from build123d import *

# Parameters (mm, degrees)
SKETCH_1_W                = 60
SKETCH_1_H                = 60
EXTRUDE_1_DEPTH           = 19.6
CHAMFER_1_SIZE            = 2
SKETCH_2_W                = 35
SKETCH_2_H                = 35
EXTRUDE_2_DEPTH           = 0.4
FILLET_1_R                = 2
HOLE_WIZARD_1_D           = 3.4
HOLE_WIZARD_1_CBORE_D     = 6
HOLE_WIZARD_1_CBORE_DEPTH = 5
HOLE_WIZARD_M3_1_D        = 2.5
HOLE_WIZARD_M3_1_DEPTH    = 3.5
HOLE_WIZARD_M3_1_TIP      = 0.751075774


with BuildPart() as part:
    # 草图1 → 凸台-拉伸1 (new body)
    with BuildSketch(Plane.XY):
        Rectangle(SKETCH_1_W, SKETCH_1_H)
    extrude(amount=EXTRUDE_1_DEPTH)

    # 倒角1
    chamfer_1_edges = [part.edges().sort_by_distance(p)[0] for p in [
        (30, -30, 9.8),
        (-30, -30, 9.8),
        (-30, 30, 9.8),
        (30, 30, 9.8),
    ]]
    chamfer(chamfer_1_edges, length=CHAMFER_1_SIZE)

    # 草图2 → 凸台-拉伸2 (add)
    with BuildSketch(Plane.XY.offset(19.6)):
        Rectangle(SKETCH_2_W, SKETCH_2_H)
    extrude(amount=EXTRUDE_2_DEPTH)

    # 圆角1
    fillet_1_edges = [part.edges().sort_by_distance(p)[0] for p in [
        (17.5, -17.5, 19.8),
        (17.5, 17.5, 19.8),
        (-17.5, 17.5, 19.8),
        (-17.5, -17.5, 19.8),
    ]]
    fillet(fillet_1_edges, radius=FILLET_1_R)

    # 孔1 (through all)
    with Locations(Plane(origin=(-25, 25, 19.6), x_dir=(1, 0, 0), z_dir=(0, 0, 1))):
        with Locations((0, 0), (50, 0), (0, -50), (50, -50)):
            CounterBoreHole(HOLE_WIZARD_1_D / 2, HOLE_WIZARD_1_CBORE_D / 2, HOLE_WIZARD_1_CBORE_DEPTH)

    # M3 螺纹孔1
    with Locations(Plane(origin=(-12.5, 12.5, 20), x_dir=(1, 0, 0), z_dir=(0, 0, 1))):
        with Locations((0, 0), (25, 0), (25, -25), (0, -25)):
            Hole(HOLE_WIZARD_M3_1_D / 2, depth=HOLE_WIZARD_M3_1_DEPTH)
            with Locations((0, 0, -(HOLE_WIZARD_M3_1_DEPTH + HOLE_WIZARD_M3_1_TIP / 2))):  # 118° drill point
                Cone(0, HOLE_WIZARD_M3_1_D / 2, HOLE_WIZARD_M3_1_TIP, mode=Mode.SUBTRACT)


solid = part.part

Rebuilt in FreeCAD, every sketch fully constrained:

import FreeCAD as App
import Part
import Sketcher

V = App.Vector
Q = App.Units.Quantity


def edges_at(feature, points):
    """Names of the edges that pass closest to the given points."""
    edges = feature.Shape.Edges
    near = lambda p: min(range(len(edges)), key=lambda i: edges[i].distToShape(Part.Vertex(*p))[0])
    return sorted({f"Edge{near(p) + 1}" for p in points})


def add_polygon(sketch, points):
    """Adds a closed chain of lines whose ends are joined by coincident constraints."""
    first, n = sketch.GeometryCount, len(points)
    for a, b in zip(points, points[1:] + points[:1]):
        sketch.addGeometry(Part.LineSegment(App.Vector(*a, 0), App.Vector(*b, 0)), False)
    for i in range(n):
        sketch.addConstraint(Sketcher.Constraint("Coincident", first + i, 2, first + (i + 1) % n, 1))

doc = App.newDocument("Part")
params = doc.addObject("Spreadsheet::Sheet", "Params")
for row, (alias, value) in enumerate([
    ("sketch1_width", "60 mm"),
    ("pad1_length", "19.6 mm"),
    ("chamfer_size", "2 mm"),
    ("sketch2_width", "35 mm"),
    ("pad2_length", "0.4 mm"),
    ("fillet_radius", "2 mm"),
    ("sketch3_diameter", "3.4 mm"),
    ("hole_diameter", "3.4 mm"),
    ("hole_cbore_diameter", "6 mm"),
    ("hole_cbore_depth", "5 mm"),
    ("sketch4_diameter", "2.5 mm"),
    ("hole2_diameter", "2.5 mm"),
    ("hole2_depth", "3.5 mm"),
], start=1):
    params.set(f"A{row}", alias)
    params.set(f"B{row}", "=" + value)
    params.setAlias(f"B{row}", alias)

body = doc.addObject("PartDesign::Body", "Body")

# Sketch on XY plane
sketch1 = body.newObject("Sketcher::SketchObject", "Sketch")
sketch1.AttachmentSupport = (doc.getObject("XY_Plane"), [""])
sketch1.MapMode = "FlatFace"
add_polygon(sketch1, [(-30, 30), (-30, -30), (30, -30), (30, 30)])  # lines 0-3
sketch1.addConstraint([
    Sketcher.Constraint("Vertical", 0),
    Sketcher.Constraint("Horizontal", 1),
    Sketcher.Constraint("Vertical", 2),
    Sketcher.Constraint("Horizontal", 3),
    Sketcher.Constraint("Symmetric", 0, 2, 2, 2, -1, 1),
    Sketcher.Constraint("Equal", 3, 0),
    Sketcher.Constraint("DistanceX", 1, 1, 1, 2, Q("60 mm")),
])
sketch1.setExpression("Constraints[10]", "Params.sketch1_width")
pad1 = body.newObject("PartDesign::Pad", "Pad")
pad1.Profile = sketch1
pad1.setExpression("Length", "Params.pad1_length")
doc.recompute()

chamfer = body.newObject("PartDesign::Chamfer", "Chamfer")
chamfer.Base = (pad1, edges_at(pad1, [
    (30, -30, 9.8),
    (-30, -30, 9.8),
    (-30, 30, 9.8),
    (30, 30, 9.8),
]))
chamfer.setExpression("Size", "Params.chamfer_size")

# Sketch on XY plane
sketch2 = body.newObject("Sketcher::SketchObject", "Sketch001")
sketch2.AttachmentSupport = (doc.getObject("XY_Plane"), [""])
sketch2.MapMode = "FlatFace"
sketch2.AttachmentOffset = App.Placement(V(0, 0, 19.6), App.Rotation())
add_polygon(sketch2, [(-18, 18), (-18, -18), (18, -18), (18, 18)])  # lines 0-3
sketch2.addConstraint([
    Sketcher.Constraint("Vertical", 0),
    Sketcher.Constraint("Horizontal", 1),
    Sketcher.Constraint("Vertical", 2),
    Sketcher.Constraint("Horizontal", 3),
    Sketcher.Constraint("Symmetric", 0, 2, 2, 2, -1, 1),
    Sketcher.Constraint("Equal", 3, 0),
    Sketcher.Constraint("DistanceX", 1, 1, 1, 2, Q("35 mm")),
])
sketch2.setExpression("Constraints[10]", "Params.sketch2_width")
pad2 = body.newObject("PartDesign::Pad", "Pad001")
pad2.Profile = sketch2
pad2.setExpression("Length", "Params.pad2_length")
doc.recompute()

fillet = body.newObject("PartDesign::Fillet", "Fillet")
fillet.Base = (pad2, edges_at(pad2, [
    (17.5, -17.5, 19.8),
    (17.5, 17.5, 19.8),
    (-17.5, 17.5, 19.8),
    (-17.5, -17.5, 19.8),
]))
fillet.setExpression("Radius", "Params.fillet_radius")

# Sketch on XY plane
sketch3 = body.newObject("Sketcher::SketchObject", "Sketch002")
sketch3.AttachmentSupport = (doc.getObject("XY_Plane"), [""])
sketch3.MapMode = "FlatFace"
sketch3.AttachmentOffset = App.Placement(V(0, 0, 19.6), App.Rotation())
sketch3.addGeometry([
    Part.Circle(V(-25, 25, 0), V(0, 0, 1), 1.7),
    Part.Circle(V(25, 25, 0), V(0, 0, 1), 1.7),
    Part.Circle(V(-25, -25, 0), V(0, 0, 1), 1.7),
    Part.Circle(V(25, -25, 0), V(0, 0, 1), 1.7),
], False)
sketch3.addConstraint([
    Sketcher.Constraint("Equal", 0, 1),
    Sketcher.Constraint("Equal", 1, 2),
    Sketcher.Constraint("Equal", 2, 3),
    Sketcher.Constraint("Symmetric", 1, 3, 2, 3, -1, 1),
    Sketcher.Constraint("Symmetric", 0, 3, 3, 3, -1, 1),
    Sketcher.Constraint("Symmetric", 0, 3, 1, 3, -2),
    Sketcher.Constraint("Diameter", 0, Q("3.4 mm")),
    Sketcher.Constraint("DistanceX", 0, 3, -1, 1, Q("25 mm")),
    Sketcher.Constraint("DistanceY", -1, 1, 0, 3, Q("25 mm")),
])
sketch3.setExpression("Constraints[6]", "Params.sketch3_diameter")
doc.recompute()
hole = body.newObject("PartDesign::Hole", "Hole")
hole.Profile = sketch3
hole.ThreadType = "None"
hole.setExpression("Diameter", "Params.hole_diameter")
hole.DepthType = "ThroughAll"
hole.HoleCutType = "Counterbore"
hole.setExpression("HoleCutDiameter", "Params.hole_cbore_diameter")
hole.setExpression("HoleCutDepth", "Params.hole_cbore_depth")

# Sketch on XY plane
sketch4 = body.newObject("Sketcher::SketchObject", "Sketch003")
sketch4.AttachmentSupport = (doc.getObject("XY_Plane"), [""])
sketch4.MapMode = "FlatFace"
sketch4.AttachmentOffset = App.Placement(V(0, 0, 20), App.Rotation())
sketch4.addGeometry([
    Part.Circle(V(-12.5, 12.5, 0), V(0, 0, 1), 1.2),
    Part.Circle(V(12.5, 12.5, 0), V(0, 0, 1), 1.2),
    Part.Circle(V(12.5, -12.5, 0), V(0, 0, 1), 1.2),
    Part.Circle(V(-12.5, -12.5, 0), V(0, 0, 1), 1.2),
], False)
sketch4.addConstraint([
    Sketcher.Constraint("Equal", 0, 1),
    Sketcher.Constraint("Equal", 1, 2),
    Sketcher.Constraint("Equal", 2, 3),
    Sketcher.Constraint("Symmetric", 0, 3, 2, 3, -1, 1),
    Sketcher.Constraint("Symmetric", 1, 3, 3, 3, -1, 1),
    Sketcher.Constraint("Symmetric", 0, 3, 1, 3, -2),
    Sketcher.Constraint("Diameter", 0, Q("2.5 mm")),
    Sketcher.Constraint("DistanceX", 0, 3, 1, 3, Q("25 mm")),
    Sketcher.Constraint("DistanceY", 2, 3, 1, 3, Q("25 mm")),
])
sketch4.setExpression("Constraints[6]", "Params.sketch4_diameter")
doc.recompute()
hole2 = body.newObject("PartDesign::Hole", "Hole001")
hole2.Profile = sketch4
hole2.ThreadType = "None"
hole2.setExpression("Diameter", "Params.hole2_diameter")
hole2.DepthType = "Dimension"
hole2.setExpression("Depth", "Params.hole2_depth")
hole2.DrillPoint = "Angled"
hole2.DrillPointAngle = 118

doc.recompute()
